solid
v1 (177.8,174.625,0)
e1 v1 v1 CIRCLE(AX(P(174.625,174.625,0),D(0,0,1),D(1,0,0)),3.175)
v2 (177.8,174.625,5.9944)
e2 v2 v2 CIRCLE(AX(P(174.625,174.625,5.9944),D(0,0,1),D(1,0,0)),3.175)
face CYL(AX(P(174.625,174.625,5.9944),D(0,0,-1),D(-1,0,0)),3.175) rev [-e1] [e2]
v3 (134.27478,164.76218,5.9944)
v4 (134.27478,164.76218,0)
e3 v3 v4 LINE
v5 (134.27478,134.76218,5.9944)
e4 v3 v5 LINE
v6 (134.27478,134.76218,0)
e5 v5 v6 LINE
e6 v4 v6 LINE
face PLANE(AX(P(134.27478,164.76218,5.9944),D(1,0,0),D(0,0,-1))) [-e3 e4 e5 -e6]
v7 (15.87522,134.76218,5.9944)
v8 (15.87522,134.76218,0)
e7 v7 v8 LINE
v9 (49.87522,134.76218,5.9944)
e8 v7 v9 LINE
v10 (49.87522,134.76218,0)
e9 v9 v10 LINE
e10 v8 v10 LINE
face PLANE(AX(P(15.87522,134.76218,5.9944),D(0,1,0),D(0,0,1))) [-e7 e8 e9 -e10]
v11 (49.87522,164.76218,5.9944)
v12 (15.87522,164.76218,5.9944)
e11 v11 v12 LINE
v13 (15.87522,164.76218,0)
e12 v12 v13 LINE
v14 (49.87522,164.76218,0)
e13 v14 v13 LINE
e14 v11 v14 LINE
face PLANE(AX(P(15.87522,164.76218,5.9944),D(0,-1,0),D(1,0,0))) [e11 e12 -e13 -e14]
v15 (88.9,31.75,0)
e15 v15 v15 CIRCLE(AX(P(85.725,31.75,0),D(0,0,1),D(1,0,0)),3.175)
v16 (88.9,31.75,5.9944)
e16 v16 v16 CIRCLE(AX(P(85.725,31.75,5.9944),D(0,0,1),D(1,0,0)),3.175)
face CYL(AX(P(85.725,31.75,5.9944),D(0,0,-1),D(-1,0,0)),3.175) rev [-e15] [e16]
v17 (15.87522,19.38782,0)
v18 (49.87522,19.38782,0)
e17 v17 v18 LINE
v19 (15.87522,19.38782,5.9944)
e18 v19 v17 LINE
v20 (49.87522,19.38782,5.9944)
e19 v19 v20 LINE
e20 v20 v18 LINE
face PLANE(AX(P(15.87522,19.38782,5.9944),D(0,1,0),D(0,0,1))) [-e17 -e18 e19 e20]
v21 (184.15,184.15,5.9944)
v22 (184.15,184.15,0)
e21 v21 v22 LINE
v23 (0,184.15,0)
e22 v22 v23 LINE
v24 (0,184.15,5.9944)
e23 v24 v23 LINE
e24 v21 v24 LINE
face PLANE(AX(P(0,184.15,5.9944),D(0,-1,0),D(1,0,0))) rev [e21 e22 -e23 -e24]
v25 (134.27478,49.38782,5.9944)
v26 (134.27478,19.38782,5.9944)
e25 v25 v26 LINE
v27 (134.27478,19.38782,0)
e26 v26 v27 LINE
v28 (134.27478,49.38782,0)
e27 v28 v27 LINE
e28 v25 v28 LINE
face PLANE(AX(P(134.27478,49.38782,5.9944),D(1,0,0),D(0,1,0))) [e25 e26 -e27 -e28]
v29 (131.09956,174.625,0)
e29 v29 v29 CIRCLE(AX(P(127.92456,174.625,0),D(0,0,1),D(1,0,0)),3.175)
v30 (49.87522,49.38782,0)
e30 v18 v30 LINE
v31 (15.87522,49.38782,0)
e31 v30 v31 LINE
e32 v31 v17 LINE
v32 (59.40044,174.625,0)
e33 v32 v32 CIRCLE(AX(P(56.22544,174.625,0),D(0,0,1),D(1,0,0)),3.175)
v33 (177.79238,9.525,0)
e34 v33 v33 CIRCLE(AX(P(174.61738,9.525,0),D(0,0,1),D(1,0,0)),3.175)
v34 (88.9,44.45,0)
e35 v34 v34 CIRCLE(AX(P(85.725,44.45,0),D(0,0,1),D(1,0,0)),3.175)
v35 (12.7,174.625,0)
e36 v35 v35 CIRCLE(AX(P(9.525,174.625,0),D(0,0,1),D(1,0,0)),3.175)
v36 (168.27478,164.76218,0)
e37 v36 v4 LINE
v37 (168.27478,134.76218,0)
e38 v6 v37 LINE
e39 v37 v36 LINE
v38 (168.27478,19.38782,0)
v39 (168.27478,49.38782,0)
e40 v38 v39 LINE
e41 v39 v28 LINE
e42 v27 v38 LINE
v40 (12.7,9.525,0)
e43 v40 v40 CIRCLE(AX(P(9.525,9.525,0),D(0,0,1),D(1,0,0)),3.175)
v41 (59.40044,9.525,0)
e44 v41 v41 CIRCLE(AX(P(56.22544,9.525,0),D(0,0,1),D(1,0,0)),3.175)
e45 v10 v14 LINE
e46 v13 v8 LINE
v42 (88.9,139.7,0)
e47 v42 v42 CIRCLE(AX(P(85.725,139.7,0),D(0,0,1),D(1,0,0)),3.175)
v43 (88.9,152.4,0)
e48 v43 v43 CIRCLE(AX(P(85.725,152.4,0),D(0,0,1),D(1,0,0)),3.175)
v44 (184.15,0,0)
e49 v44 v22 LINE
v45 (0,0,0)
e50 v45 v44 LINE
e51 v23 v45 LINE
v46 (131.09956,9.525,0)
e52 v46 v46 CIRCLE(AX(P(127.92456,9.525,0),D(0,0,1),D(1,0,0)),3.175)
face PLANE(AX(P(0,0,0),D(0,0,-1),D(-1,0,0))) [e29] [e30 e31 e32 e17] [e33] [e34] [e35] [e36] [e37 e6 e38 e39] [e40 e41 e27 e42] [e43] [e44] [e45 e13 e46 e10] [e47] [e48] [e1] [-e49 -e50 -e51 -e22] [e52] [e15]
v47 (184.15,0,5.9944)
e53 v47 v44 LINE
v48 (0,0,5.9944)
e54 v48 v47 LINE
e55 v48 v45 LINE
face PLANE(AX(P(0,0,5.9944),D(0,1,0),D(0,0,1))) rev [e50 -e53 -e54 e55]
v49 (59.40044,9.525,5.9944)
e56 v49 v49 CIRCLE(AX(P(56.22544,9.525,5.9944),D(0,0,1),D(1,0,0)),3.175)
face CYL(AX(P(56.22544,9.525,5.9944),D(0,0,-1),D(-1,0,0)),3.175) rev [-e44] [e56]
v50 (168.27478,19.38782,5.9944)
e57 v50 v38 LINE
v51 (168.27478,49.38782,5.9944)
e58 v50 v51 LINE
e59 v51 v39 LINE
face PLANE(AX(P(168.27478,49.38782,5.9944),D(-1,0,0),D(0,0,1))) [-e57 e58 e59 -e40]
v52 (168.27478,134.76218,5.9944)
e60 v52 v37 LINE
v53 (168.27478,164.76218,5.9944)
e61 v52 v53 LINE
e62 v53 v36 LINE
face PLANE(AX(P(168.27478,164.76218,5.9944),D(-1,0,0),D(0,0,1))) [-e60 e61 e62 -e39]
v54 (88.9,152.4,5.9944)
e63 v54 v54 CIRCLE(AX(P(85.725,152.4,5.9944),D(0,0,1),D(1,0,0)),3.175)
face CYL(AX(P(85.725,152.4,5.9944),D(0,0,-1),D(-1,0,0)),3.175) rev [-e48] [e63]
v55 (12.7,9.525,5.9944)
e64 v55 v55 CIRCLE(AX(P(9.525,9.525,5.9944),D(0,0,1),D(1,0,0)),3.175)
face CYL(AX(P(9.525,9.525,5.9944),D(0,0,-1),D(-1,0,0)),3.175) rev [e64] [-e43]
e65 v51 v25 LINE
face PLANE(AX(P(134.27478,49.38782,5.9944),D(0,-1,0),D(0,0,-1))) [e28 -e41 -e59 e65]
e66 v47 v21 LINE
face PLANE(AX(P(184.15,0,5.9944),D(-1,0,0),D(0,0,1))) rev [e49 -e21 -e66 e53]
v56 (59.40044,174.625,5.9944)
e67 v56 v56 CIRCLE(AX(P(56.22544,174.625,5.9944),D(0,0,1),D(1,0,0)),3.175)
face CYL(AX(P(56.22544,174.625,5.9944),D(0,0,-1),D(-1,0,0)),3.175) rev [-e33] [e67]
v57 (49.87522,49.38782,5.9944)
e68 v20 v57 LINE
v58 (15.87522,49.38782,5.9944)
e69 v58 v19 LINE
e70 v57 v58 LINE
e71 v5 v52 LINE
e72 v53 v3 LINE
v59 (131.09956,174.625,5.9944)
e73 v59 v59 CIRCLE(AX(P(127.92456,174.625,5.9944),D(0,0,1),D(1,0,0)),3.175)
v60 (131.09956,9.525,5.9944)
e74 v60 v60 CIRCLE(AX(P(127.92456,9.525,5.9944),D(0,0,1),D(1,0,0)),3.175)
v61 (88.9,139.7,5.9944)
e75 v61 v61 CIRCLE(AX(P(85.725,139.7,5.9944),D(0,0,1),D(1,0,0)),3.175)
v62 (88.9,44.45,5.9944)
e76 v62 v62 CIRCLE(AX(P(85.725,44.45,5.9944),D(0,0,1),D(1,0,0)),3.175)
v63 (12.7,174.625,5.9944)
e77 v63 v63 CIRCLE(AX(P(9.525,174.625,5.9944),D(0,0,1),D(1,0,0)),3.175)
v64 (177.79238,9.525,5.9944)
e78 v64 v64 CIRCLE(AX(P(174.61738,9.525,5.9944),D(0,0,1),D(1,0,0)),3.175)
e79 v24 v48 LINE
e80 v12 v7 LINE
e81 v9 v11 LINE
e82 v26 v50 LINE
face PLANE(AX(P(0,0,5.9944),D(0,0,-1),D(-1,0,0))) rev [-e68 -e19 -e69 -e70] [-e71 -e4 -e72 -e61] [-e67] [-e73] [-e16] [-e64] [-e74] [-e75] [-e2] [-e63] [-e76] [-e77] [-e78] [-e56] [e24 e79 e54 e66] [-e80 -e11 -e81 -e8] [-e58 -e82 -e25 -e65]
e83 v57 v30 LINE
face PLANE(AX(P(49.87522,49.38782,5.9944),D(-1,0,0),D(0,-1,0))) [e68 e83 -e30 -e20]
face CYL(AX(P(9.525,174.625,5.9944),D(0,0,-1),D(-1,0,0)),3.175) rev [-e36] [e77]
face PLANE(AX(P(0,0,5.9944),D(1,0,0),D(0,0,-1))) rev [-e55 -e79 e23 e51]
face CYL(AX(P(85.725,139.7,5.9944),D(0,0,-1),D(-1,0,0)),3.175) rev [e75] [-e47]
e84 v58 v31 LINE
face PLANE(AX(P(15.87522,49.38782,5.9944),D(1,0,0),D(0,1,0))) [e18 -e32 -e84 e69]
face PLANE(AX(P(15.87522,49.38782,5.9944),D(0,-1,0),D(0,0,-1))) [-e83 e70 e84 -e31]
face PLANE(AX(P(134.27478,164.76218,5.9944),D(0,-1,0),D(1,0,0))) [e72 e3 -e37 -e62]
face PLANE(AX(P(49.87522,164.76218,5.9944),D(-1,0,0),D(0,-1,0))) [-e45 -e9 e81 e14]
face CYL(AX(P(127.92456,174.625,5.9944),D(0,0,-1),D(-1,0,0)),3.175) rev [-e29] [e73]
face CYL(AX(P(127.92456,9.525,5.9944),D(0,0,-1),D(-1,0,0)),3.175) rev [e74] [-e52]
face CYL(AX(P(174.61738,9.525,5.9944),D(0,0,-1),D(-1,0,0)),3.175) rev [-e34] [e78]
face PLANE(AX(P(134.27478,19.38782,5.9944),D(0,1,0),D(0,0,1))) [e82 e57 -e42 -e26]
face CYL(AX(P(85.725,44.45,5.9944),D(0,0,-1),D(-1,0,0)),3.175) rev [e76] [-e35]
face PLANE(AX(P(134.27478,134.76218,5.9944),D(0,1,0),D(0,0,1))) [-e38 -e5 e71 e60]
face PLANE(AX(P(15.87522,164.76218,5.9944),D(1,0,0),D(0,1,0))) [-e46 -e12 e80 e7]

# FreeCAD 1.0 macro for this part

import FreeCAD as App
import Part
import Sketcher
Q = App.Units.Quantity


def add_polygon(sketch, points):
    """Adds a closed chain of lines whose ends are joined by coincident constraints."""
    first, n = sketch.GeometryCount, len(points)
    for a, b in zip(points, points[1:] + points[:1]):
        sketch.addGeometry(Part.LineSegment(App.Vector(*a, 0), App.Vector(*b, 0)), False)
    for i in range(n):
        sketch.addConstraint(Sketcher.Constraint("Coincident", first + i, 2, first + (i + 1) % n, 1))

doc = App.newDocument("Part")
body = doc.addObject("PartDesign::Body", "Body")

# Sketch on XY plane
sketch1 = doc.addObject("Sketcher::SketchObject", "Sketch")
body.addObject(sketch1)
sketch1.AttachmentSupport = (doc.XY_Plane, [""])
sketch1.MapMode = "FlatFace"
add_polygon(sketch1, [(0, 184.15), (0, 0), (184.15, 0), (184.15, 184.15)])  # lines 0-3
sketch1.addGeometry(Part.Circle(App.Vector(9.525, 9.525, 0), App.Vector(0, 0, 1), 3.175), False)  # 4
add_polygon(sketch1, [(49.87522, 19.38782), (15.87522, 19.38782), (15.87522, 49.38782), (49.87522, 49.38782)])  # lines 5-8
sketch1.addGeometry(Part.Circle(App.Vector(56.22544, 9.525, 0), App.Vector(0, 0, 1), 3.175), False)  # 9
sketch1.addGeometry(Part.Circle(App.Vector(85.725, 31.75, 0), App.Vector(0, 0, 1), 3.175), False)  # 10
sketch1.addGeometry(Part.Circle(App.Vector(85.725, 44.45, 0), App.Vector(0, 0, 1), 3.175), False)  # 11
sketch1.addGeometry(Part.Circle(App.Vector(127.92456, 9.525, 0), App.Vector(0, 0, 1), 3.175), False)  # 12
sketch1.addGeometry(Part.Circle(App.Vector(174.61738, 9.525, 0), App.Vector(0, 0, 1), 3.175), False)  # 13
add_polygon(sketch1, [(168.27478, 19.38782), (134.27478, 19.38782), (134.27478, 49.38782), (168.27478, 49.38782)])  # lines 14-17
add_polygon(sketch1, [(49.87522, 134.76218), (15.87522, 134.76218), (15.87522, 164.76218), (49.87522, 164.76218)])  # lines 18-21
sketch1.addGeometry(Part.Circle(App.Vector(9.525, 174.625, 0), App.Vector(0, 0, 1), 3.175), False)  # 22
sketch1.addGeometry(Part.Circle(App.Vector(85.725, 139.7, 0), App.Vector(0, 0, 1), 3.175), False)  # 23
sketch1.addGeometry(Part.Circle(App.Vector(85.725, 152.4, 0), App.Vector(0, 0, 1), 3.175), False)  # 24
sketch1.addGeometry(Part.Circle(App.Vector(56.22544, 174.625, 0), App.Vector(0, 0, 1), 3.175), False)  # 25
sketch1.addGeometry(Part.Circle(App.Vector(127.92456, 174.625, 0), App.Vector(0, 0, 1), 3.175), False)  # 26
add_polygon(sketch1, [(168.27478, 134.76218), (134.27478, 134.76218), (134.27478, 164.76218), (168.27478, 164.76218)])  # lines 27-30
sketch1.addGeometry(Part.Circle(App.Vector(174.625, 174.625, 0), App.Vector(0, 0, 1), 3.175), False)  # 31
sketch1.addConstraint([
    Sketcher.Constraint("Vertical", 0),
    Sketcher.Constraint("Horizontal", 1),
    Sketcher.Constraint("Vertical", 2),
    Sketcher.Constraint("Horizontal", 3),
    Sketcher.Constraint("Horizontal", 5),
    Sketcher.Constraint("Vertical", 6),
    Sketcher.Constraint("Horizontal", 7),
    Sketcher.Constraint("Vertical", 8),
    Sketcher.Constraint("Horizontal", 14),
    Sketcher.Constraint("Vertical", 15),
    Sketcher.Constraint("Horizontal", 16),
    Sketcher.Constraint("Vertical", 17),
    Sketcher.Constraint("Horizontal", 18),
    Sketcher.Constraint("Vertical", 19),
    Sketcher.Constraint("Horizontal", 20),
    Sketcher.Constraint("Vertical", 21),
    Sketcher.Constraint("Horizontal", 27),
    Sketcher.Constraint("Vertical", 28),
    Sketcher.Constraint("Horizontal", 29),
    Sketcher.Constraint("Vertical", 30),
    Sketcher.Constraint("Coincident", 0, 2, -1, 1),
    Sketcher.Constraint("Equal", 4, 9),
    Sketcher.Constraint("Equal", 9, 10),
    Sketcher.Constraint("Equal", 10, 11),
    Sketcher.Constraint("Equal", 11, 12),
    Sketcher.Constraint("Equal", 12, 13),
    Sketcher.Constraint("Equal", 13, 22),
    Sketcher.Constraint("Equal", 22, 23),
    Sketcher.Constraint("Equal", 23, 24),
    Sketcher.Constraint("Equal", 24, 25),
    Sketcher.Constraint("Equal", 25, 26),
    Sketcher.Constraint("Equal", 26, 31),
    Sketcher.Constraint("Horizontal", 4, 3, 9, 3),
    Sketcher.Constraint("Horizontal", 9, 3, 12, 3),
    Sketcher.Constraint("Horizontal", 12, 3, 13, 3),
    Sketcher.Constraint("Horizontal", 22, 3, 25, 3),
    Sketcher.Constraint("Horizontal", 25, 3, 26, 3),
    Sketcher.Constraint("Horizontal", 26, 3, 31, 3),
    Sketcher.Constraint("Horizontal", 8, 2, 14, 2),
    Sketcher.Constraint("Horizontal", 7, 2, 15, 2),
    Sketcher.Constraint("Horizontal", 21, 2, 27, 2),
    Sketcher.Constraint("Horizontal", 20, 2, 28, 2),
    Sketcher.Constraint("Vertical", 10, 3, 11, 3),
    Sketcher.Constraint("Vertical", 4, 3, 22, 3),
    Sketcher.Constraint("Vertical", 11, 3, 23, 3),
    Sketcher.Constraint("Vertical", 23, 3, 24, 3),
    Sketcher.Constraint("Vertical", 9, 3, 25, 3),
    Sketcher.Constraint("Vertical", 12, 3, 26, 3),
    Sketcher.Constraint("Vertical", 6, 2, 18, 2),
    Sketcher.Constraint("Vertical", 8, 2, 20, 2),
    Sketcher.Constraint("Vertical", 15, 2, 27, 2),
    Sketcher.Constraint("Vertical", 17, 2, 29, 2),
    Sketcher.Constraint("Equal", 7, 14),
    Sketcher.Constraint("Equal", 3, 0),
    Sketcher.Constraint("Equal", 17, 19),
    Sketcher.Constraint("Diameter", 4, Q("0.25 in")),
    Sketcher.Constraint("DistanceY", -1, 1, 24, 3, Q("6 in")),
    Sketcher.Constraint("DistanceX", 4, 3, 10, 3, Q("3 in")),
    Sketcher.Constraint("DistanceX", 1, 1, 1, 2, Q("7.25 in")),
    Sketcher.Constraint("DistanceY", -1, 1, 23, 3, Q("5.5 in")),
    Sketcher.Constraint("DistanceY", 10, 3, 11, 3, Q("0.5 in")),
    Sketcher.Constraint("DistanceY", 4, 3, 22, 3, Q("6.5 in")),
    Sketcher.Constraint("DistanceX", 24, 3, 31, 3, Q("3.5 in")),
    Sketcher.Constraint("DistanceY", -1, 1, 10, 3, Q("1.25 in")),
    Sketcher.Constraint("DistanceX", -1, 1, 4, 3, Q("0.375 in")),
    Sketcher.Constraint("DistanceY", -1, 1, 4, 3, Q("0.375 in")),
    Sketcher.Constraint("DistanceX", 5, 2, 5, 1, Q("34 mm")),
    Sketcher.Constraint("DistanceY", 6, 1, 6, 2, Q("30 mm")),
    Sketcher.Constraint("DistanceX", -1, 1, 9, 3, Q("2.2136 in")),
    Sketcher.Constraint("DistanceX", -1, 1, 12, 3, Q("5.0364 in")),
    Sketcher.Constraint("DistanceX", -1, 1, 13, 3, Q("6.8747 in")),
    Sketcher.Constraint("DistanceY", -1, 1, 5, 2, Q("0.7633 in")),
    Sketcher.Constraint("DistanceY", -1, 1, 19, 2, Q("6.4867 in")),
    Sketcher.Constraint("DistanceX", 14, 2, 13, 3, Q("40.3426 mm")),
    Sketcher.Constraint("DistanceX", -1, 1, 5, 2, Q("15.87522 mm")),
])
pad1 = doc.addObject("PartDesign::Pad", "Pad")
body.addObject(pad1)
pad1.Profile = sketch1
pad1.Length = Q("0.236 in")

doc.recompute()
